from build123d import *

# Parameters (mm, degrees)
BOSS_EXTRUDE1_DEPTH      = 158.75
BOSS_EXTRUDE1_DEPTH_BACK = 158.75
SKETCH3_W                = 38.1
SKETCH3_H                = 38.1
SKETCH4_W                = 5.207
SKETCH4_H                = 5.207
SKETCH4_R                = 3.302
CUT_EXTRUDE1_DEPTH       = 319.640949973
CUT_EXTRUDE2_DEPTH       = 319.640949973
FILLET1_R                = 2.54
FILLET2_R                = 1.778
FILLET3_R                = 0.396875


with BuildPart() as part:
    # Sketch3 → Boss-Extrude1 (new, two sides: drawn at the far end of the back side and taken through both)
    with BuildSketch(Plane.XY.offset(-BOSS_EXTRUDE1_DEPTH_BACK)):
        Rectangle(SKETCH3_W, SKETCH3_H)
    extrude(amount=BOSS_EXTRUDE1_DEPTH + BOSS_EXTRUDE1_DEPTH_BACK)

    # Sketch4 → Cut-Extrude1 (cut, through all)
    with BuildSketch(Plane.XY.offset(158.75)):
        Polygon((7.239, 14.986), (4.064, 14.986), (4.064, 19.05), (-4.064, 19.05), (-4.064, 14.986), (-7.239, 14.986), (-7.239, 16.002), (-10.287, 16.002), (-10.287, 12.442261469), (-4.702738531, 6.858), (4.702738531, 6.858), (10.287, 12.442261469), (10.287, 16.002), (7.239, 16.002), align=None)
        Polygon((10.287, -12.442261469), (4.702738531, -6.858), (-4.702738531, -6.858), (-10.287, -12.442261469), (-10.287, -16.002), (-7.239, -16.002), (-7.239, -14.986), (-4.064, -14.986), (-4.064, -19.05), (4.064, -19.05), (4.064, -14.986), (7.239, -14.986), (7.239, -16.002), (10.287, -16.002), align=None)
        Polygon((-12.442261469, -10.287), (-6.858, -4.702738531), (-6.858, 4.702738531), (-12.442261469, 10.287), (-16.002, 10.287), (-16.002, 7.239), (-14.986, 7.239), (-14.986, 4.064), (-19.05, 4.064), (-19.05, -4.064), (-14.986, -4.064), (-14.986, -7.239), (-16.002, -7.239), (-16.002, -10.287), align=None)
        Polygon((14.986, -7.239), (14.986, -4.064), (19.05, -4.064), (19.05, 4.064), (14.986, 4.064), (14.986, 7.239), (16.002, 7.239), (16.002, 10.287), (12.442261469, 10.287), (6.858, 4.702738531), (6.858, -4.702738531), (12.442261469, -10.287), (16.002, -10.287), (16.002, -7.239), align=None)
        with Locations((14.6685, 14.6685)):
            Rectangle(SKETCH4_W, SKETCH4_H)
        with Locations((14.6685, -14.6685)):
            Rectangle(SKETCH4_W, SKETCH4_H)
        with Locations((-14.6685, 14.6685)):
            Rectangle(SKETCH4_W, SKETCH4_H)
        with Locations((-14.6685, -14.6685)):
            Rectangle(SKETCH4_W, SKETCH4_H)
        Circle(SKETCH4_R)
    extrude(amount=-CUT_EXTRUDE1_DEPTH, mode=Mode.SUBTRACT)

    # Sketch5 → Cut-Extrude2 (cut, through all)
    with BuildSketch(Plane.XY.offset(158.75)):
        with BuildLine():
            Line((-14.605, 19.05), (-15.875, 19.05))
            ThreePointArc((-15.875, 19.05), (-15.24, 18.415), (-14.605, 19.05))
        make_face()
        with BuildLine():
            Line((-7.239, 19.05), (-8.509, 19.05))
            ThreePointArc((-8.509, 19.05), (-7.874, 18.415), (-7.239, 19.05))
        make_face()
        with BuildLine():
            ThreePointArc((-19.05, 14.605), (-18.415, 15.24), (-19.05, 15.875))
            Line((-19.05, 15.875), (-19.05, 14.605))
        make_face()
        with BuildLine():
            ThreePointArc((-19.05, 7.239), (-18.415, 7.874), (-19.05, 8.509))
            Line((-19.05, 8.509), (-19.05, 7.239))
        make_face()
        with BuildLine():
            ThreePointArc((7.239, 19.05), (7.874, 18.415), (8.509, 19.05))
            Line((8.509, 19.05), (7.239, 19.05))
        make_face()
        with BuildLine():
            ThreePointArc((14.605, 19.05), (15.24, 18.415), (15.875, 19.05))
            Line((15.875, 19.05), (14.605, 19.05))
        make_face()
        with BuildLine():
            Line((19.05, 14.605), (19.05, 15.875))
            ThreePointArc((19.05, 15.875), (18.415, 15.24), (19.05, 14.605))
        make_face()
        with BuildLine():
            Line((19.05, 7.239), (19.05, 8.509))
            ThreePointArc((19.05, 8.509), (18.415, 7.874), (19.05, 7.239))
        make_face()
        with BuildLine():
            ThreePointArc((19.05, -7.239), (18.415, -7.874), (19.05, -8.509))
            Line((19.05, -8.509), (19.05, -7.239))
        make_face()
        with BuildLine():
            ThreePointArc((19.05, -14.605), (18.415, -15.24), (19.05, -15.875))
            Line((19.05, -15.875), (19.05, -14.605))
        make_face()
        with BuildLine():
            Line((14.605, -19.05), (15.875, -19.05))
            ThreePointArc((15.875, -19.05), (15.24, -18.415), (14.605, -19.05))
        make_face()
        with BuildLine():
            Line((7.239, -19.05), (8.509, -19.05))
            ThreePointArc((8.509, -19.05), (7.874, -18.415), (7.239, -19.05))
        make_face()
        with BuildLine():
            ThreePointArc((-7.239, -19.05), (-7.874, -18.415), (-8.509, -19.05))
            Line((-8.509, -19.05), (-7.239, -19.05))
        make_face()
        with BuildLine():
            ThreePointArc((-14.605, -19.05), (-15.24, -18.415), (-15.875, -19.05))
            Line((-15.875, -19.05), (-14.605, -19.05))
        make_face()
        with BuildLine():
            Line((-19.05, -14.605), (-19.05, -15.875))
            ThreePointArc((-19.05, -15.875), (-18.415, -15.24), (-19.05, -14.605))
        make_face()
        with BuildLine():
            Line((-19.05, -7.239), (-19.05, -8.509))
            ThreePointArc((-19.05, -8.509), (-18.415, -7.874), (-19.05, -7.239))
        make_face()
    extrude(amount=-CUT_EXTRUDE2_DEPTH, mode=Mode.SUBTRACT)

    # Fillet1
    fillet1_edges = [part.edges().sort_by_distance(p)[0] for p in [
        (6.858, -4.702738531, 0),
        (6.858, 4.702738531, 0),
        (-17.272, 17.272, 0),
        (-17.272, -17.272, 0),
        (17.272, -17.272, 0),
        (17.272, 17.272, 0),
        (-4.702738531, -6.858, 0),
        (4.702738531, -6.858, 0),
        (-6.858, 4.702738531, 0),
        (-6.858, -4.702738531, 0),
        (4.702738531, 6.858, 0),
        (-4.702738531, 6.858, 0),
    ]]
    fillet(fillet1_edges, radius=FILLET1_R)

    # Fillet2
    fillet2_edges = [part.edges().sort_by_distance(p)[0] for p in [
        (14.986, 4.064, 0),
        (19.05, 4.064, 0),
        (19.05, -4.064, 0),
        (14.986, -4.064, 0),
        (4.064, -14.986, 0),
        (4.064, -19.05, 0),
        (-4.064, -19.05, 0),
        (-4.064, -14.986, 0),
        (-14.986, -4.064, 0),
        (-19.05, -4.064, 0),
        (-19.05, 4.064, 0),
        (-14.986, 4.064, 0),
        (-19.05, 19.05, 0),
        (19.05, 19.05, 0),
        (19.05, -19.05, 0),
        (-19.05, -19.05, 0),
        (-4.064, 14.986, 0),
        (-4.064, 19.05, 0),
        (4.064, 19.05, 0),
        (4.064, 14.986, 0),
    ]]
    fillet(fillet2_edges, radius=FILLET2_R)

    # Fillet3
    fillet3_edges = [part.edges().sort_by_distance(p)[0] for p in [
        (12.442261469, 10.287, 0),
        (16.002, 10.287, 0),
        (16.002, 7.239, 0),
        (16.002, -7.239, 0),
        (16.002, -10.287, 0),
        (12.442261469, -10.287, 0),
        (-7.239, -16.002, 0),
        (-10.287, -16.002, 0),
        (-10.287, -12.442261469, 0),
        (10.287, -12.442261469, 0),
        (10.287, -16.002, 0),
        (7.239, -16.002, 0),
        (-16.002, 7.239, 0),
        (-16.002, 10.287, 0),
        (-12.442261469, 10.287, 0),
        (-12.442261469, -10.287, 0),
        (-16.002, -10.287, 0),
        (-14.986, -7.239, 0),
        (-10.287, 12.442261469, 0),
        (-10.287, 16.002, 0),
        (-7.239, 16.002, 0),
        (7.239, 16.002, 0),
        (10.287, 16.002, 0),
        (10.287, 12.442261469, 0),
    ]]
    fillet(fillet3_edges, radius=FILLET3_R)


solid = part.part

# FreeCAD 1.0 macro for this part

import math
import FreeCAD as App
import Part
import Sketcher

V = App.Vector
Q = App.Units.Quantity


def edges_at(feature, points):
    """Names of the edges that pass closest to the given points."""
    edges = feature.Shape.Edges
    near = lambda p: min(range(len(edges)), key=lambda i: edges[i].distToShape(Part.Vertex(*p))[0])
    return sorted({f"Edge{near(p) + 1}" for p in points})


def add_polygon(sketch, points):
    """Adds a closed chain of lines whose ends are joined by coincident constraints."""
    first, n = sketch.GeometryCount, len(points)
    for a, b in zip(points, points[1:] + points[:1]):
        sketch.addGeometry(Part.LineSegment(App.Vector(*a, 0), App.Vector(*b, 0)), False)
    for i in range(n):
        sketch.addConstraint(Sketcher.Constraint("Coincident", first + i, 2, first + (i + 1) % n, 1))

doc = App.newDocument("Part")
params = doc.addObject("Spreadsheet::Sheet", "Params")
for row, (alias, value) in enumerate([
    ("sketch1_width", "1.5 in"),
    ("pad1_length", "6.25 in"),
    ("pad1_length2", "6.25 in"),
    ("sketch2_diameter", "0.26 in"),
    ("sketch2_width", "0.32 in"),
    ("sketch2_width2", "0.12 in"),
    ("sketch2_width3", "0.04 in"),
    ("sketch2_width4", "0.16 in"),
    ("sketch3_radius", "0.025 in"),
    ("fillet_radius", "0.1 in"),
    ("fillet2_radius", "0.07 in"),
    ("fillet3_radius", "0.015625 in"),
], start=1):
    params.set(f"A{row}", alias)
    params.set(f"B{row}", "=" + value)
    params.setAlias(f"B{row}", alias)

body = doc.addObject("PartDesign::Body", "Body")

sketch1 = body.newObject("Sketcher::SketchObject", "Sketch")
sketch1.AttachmentSupport = (doc.getObject("XY_Plane"), [""])
sketch1.MapMode = "FlatFace"
add_polygon(sketch1, [(-19, 19), (-19, -19), (19, -19), (19, 19)])
sketch1.addConstraint([
    Sketcher.Constraint("Vertical", 0),
    Sketcher.Constraint("Horizontal", 1),
    Sketcher.Constraint("Vertical", 2),
    Sketcher.Constraint("Horizontal", 3),
    Sketcher.Constraint("Symmetric", 0, 2, 2, 2, -1, 1),
    Sketcher.Constraint("Equal", 3, 0),
    Sketcher.Constraint("DistanceX", 1, 1, 1, 2, Q("1.5 in")),
])
sketch1.setExpression("Constraints[10]", "Params.sketch1_width")
pad1 = body.newObject("PartDesign::Pad", "Pad")
pad1.Profile = sketch1
pad1.Type = "TwoLengths"
pad1.setExpression("Length", "Params.pad1_length")
pad1.setExpression("Length2", "Params.pad1_length2")

sketch2 = body.newObject("Sketcher::SketchObject", "Sketch001")
sketch2.AttachmentSupport = (doc.getObject("XY_Plane"), [""])
sketch2.MapMode = "FlatFace"
sketch2.AttachmentOffset = App.Placement(V(0, 0, 6.25 * 25.4), App.Rotation())
add_polygon(sketch2, [(7.2, 15), (4.1, 15), (4.1, 19.1), (-4.1, 19.1), (-4.1, 15), (-7.2, 15), (-7.2, 16), (-10.3, 16), (-10.3, 12.4), (-4.7, 6.9), (4.7, 6.9), (10.3, 12.4), (10.3, 16), (7.2, 16)])
add_polygon(sketch2, [(10.3, -12.4), (4.7, -6.9), (-4.7, -6.9), (-10.3, -12.4), (-10.3, -16), (-7.2, -16), (-7.2, -15), (-4.1, -15), (-4.1, -19.1), (4.1, -19.1), (4.1, -15), (7.2, -15), (7.2, -16), (10.3, -16)])
add_polygon(sketch2, [(-12.4, -10.3), (-6.9, -4.7), (-6.9, 4.7), (-12.4, 10.3), (-16, 10.3), (-16, 7.2), (-15, 7.2), (-15, 4.1), (-19.1, 4.1), (-19.1, -4.1), (-15, -4.1), (-15, -7.2), (-16, -7.2), (-16, -10.3)])
add_polygon(sketch2, [(15, -7.2), (15, -4.1), (19.1, -4.1), (19.1, 4.1), (15, 4.1), (15, 7.2), (16, 7.2), (16, 10.3), (12.4, 10.3), (6.9, 4.7), (6.9, -4.7), (12.4, -10.3), (16, -10.3), (16, -7.2)])
add_polygon(sketch2, [(12.1, 17.3), (12.1, 12.1), (17.3, 12.1), (17.3, 17.3)])
add_polygon(sketch2, [(12.1, -12.1), (12.1, -17.3), (17.3, -17.3), (17.3, -12.1)])
add_polygon(sketch2, [(-17.3, 17.3), (-17.3, 12.1), (-12.1, 12.1), (-12.1, 17.3)])
add_polygon(sketch2, [(-17.3, -12.1), (-17.3, -17.3), (-12.1, -17.3), (-12.1, -12.1)])
sketch2.addGeometry(Part.Circle(V(0, 0, 0), V(0, 0, 1), 3.3), False)
sketch2.addConstraint([
    Sketcher.Constraint("Horizontal", 0),
    Sketcher.Constraint("Vertical", 1),
    Sketcher.Constraint("Horizontal", 2),
    Sketcher.Constraint("Vertical", 3),
    Sketcher.Constraint("Horizontal", 4),
    Sketcher.Constraint("Vertical", 5),
    Sketcher.Constraint("Horizontal", 6),
    Sketcher.Constraint("Vertical", 7),
    Sketcher.Constraint("Horizontal", 9),
    Sketcher.Constraint("Vertical", 11),
    Sketcher.Constraint("Horizontal", 12),
    Sketcher.Constraint("Vertical", 13),
    Sketcher.Constraint("Horizontal", 15),
    Sketcher.Constraint("Vertical", 17),
    Sketcher.Constraint("Horizontal", 18),
    Sketcher.Constraint("Vertical", 19),
    Sketcher.Constraint("Horizontal", 20),
    Sketcher.Constraint("Vertical", 21),
    Sketcher.Constraint("Horizontal", 22),
    Sketcher.Constraint("Vertical", 23),
    Sketcher.Constraint("Horizontal", 24),
    Sketcher.Constraint("Vertical", 25),
    Sketcher.Constraint("Horizontal", 26),
    Sketcher.Constraint("Vertical", 27),
    Sketcher.Constraint("Vertical", 29),
    Sketcher.Constraint("Horizontal", 31),
    Sketcher.Constraint("Vertical", 32),
    Sketcher.Constraint("Horizontal", 33),
    Sketcher.Constraint("Vertical", 34),
    Sketcher.Constraint("Horizontal", 35),
    Sketcher.Constraint("Vertical", 36),
    Sketcher.Constraint("Horizontal", 37),
    Sketcher.Constraint("Vertical", 38),
    Sketcher.Constraint("Horizontal", 39),
    Sketcher.Constraint("Vertical", 40),
    Sketcher.Constraint("Horizontal", 41),
    Sketcher.Constraint("Vertical", 42),
    Sketcher.Constraint("Horizontal", 43),
    Sketcher.Constraint("Vertical", 44),
    Sketcher.Constraint("Horizontal", 45),
    Sketcher.Constraint("Vertical", 46),
    Sketcher.Constraint("Horizontal", 47),
    Sketcher.Constraint("Vertical", 48),
    Sketcher.Constraint("Horizontal", 49),
    Sketcher.Constraint("Vertical", 51),
    Sketcher.Constraint("Horizontal", 53),
    Sketcher.Constraint("Vertical", 54),
    Sketcher.Constraint("Horizontal", 55),
    Sketcher.Constraint("Vertical", 56),
    Sketcher.Constraint("Horizontal", 57),
    Sketcher.Constraint("Vertical", 58),
    Sketcher.Constraint("Horizontal", 59),
    Sketcher.Constraint("Vertical", 60),
    Sketcher.Constraint("Horizontal", 61),
    Sketcher.Constraint("Vertical", 62),
    Sketcher.Constraint("Horizontal", 63),
    Sketcher.Constraint("Vertical", 64),
    Sketcher.Constraint("Horizontal", 65),
    Sketcher.Constraint("Vertical", 66),
    Sketcher.Constraint("Horizontal", 67),
    Sketcher.Constraint("Vertical", 68),
    Sketcher.Constraint("Horizontal", 69),
    Sketcher.Constraint("Vertical", 70),
    Sketcher.Constraint("Horizontal", 71),
    Sketcher.Constraint("Coincident", 72, 3, -1, 1),
    Sketcher.Constraint("Symmetric", 8, 2, 14, 2, -1, 1),
    Sketcher.Constraint("Symmetric", 10, 2, 16, 2, -1, 1),
    Sketcher.Constraint("Symmetric", 12, 2, 18, 2, -1, 1),
    Sketcher.Constraint("Symmetric", 0, 2, 20, 2, -1, 1),
    Sketcher.Constraint("Symmetric", 2, 2, 22, 2, -1, 1),
    Sketcher.Constraint("Symmetric", 4, 2, 24, 2, -1, 1),
    Sketcher.Constraint("Symmetric", 6, 2, 26, 2, -1, 1),
    Sketcher.Constraint("Symmetric", 34, 2, 42, 2, -1, 1),
    Sketcher.Constraint("Symmetric", 36, 2, 44, 2, -1, 1),
    Sketcher.Constraint("Symmetric", 38, 2, 46, 2, -1, 1),
    Sketcher.Constraint("Symmetric", 40, 2, 48, 2, -1, 1),
    Sketcher.Constraint("Symmetric", 28, 2, 50, 2, -1, 1),
    Sketcher.Constraint("Symmetric", 30, 2, 52, 2, -1, 1),
    Sketcher.Constraint("Symmetric", 32, 2, 54, 2, -1, 1),
    Sketcher.Constraint("Symmetric", 62, 2, 64, 2, -1, 1),
    Sketcher.Constraint("Symmetric", 60, 2, 66, 2, -1, 1),
    Sketcher.Constraint("Symmetric", 58, 2, 68, 2, -1, 1),
    Sketcher.Constraint("Symmetric", 56, 2, 70, 2, -1, 1),
    Sketcher.Constraint("Symmetric", 0, 2, 3, 2, -2),
    Sketcher.Constraint("Symmetric", 7, 2, 10, 2, -2),
    Sketcher.Constraint("Symmetric", 5, 2, 12, 2, -2),
    Sketcher.Constraint("Symmetric", 37, 2, 42, 2, -2),
    Sketcher.Constraint("Symmetric", 32, 2, 47, 2, -2),
    Sketcher.Constraint("Symmetric", 30, 2, 49, 2, -2),
    Sketcher.Constraint("Symmetric", 57, 2, 64, 2, -2),
    Sketcher.Constraint("Symmetric", 59, 2, 66, 2, -2),
    Sketcher.Constraint("Perpendicular", 8, 10),
    Sketcher.Constraint("Perpendicular", 10, 14),
    Sketcher.Constraint("Perpendicular", 14, 16),
    Sketcher.Constraint("Parallel", 16, 28),
    Sketcher.Constraint("Perpendicular", 28, 30),
    Sketcher.Constraint("Perpendicular", 30, 50),
    Sketcher.Constraint("Perpendicular", 50, 52),
    Sketcher.Constraint("Horizontal", 29, 2, 50, 2),
    Sketcher.Constraint("Equal", 45, 1),
    Sketcher.Constraint("Equal", 55, 5),
    Sketcher.Constraint("Equal", 53, 7),
    Sketcher.Constraint("Equal", 15, 29),
    Sketcher.Constraint("Equal", 26, 32),
    Sketcher.Constraint("Equal", 24, 34),
    Sketcher.Constraint("Equal", 22, 36),
    Sketcher.Constraint("Equal", 71, 56),
    Sketcher.Constraint("Diameter", 72, Q("0.26 in")),
    Sketcher.Constraint("DistanceX", 2, 2, 2, 1, Q("0.32 in")),
    Sketcher.Constraint("DistanceX", 6, 2, 6, 1, Q("0.12 in")),
    Sketcher.Constraint("DistanceX", 33, 1, 33, 2, Q("0.04 in")),
    Sketcher.Constraint("DistanceX", 35, 2, 35, 1, Q("0.16 in")),
    Sketcher.Constraint("DistanceX", 0, 2, 0, 1, Q("0.125 in")),
    Sketcher.Constraint("DistanceX", 57, 1, 57, 2, Q("0.205 in")),
    Sketcher.Constraint("DistanceY", -1, 1, 0, 2, Q("0.59 in")),
    Sketcher.Constraint("DistanceY", -1, 1, 8, 2, Q("0.27 in")),
    Sketcher.Constraint("DistanceX", 28, 2, -1, 1, Q("0.27 in")),
    Sketcher.Constraint("DistanceX", -1, 1, 57, 2, Q("0.68 in")),
    Sketcher.Constraint("DistanceY", -1, 1, 58, 2, Q("0.68 in")),
    Sketcher.Constraint("DistanceX", 31, 2, 31, 1, Q("3.559739 mm")),
])
sketch2.setExpression("Constraints[179]", "Params.sketch2_diameter")
sketch2.setExpression("Constraints[180]", "Params.sketch2_width")
sketch2.setExpression("Constraints[181]", "Params.sketch2_width2")
sketch2.setExpression("Constraints[182]", "Params.sketch2_width3")
sketch2.setExpression("Constraints[183]", "Params.sketch2_width4")
pocket1 = body.newObject("PartDesign::Pocket", "Pocket")
pocket1.Profile = sketch2
pocket1.Type = "ThroughAll"

sketch3 = body.newObject("Sketcher::SketchObject", "Sketch002")
sketch3.AttachmentSupport = (doc.getObject("XY_Plane"), [""])
sketch3.MapMode = "FlatFace"
sketch3.AttachmentOffset = App.Placement(V(0, 0, 6.25 * 25.4), App.Rotation())
sketch3.addGeometry([
    Part.LineSegment(V(-14.6, 19.1, 0), V(-15.9, 19.1, 0)),
    Part.ArcOfCircle(Part.Circle(V(-15.2, 19.1, 0), V(0, 0, 1), 0.6), math.radians(180), math.radians(360)),
    Part.LineSegment(V(-7.2, 19.1, 0), V(-8.5, 19.1, 0)),
    Part.ArcOfCircle(Part.Circle(V(-7.9, 19.1, 0), V(0, 0, 1), 0.6), math.radians(180), math.radians(360)),
    Part.ArcOfCircle(Part.Circle(V(-19.1, 15.2, 0), V(0, 0, 1), 0.6), math.radians(-90), math.radians(90)),
    Part.LineSegment(V(-19.1, 15.9, 0), V(-19.1, 14.6, 0)),
    Part.ArcOfCircle(Part.Circle(V(-19.1, 7.9, 0), V(0, 0, 1), 0.6), math.radians(-90), math.radians(90)),
    Part.LineSegment(V(-19.1, 8.5, 0), V(-19.1, 7.2, 0)),
    Part.ArcOfCircle(Part.Circle(V(7.9, 19.1, 0), V(0, 0, 1), 0.6), math.radians(180), math.radians(360)),
    Part.LineSegment(V(8.5, 19.1, 0), V(7.2, 19.1, 0)),
    Part.ArcOfCircle(Part.Circle(V(15.2, 19.1, 0), V(0, 0, 1), 0.6), math.radians(180), math.radians(360)),
    Part.LineSegment(V(15.9, 19.1, 0), V(14.6, 19.1, 0)),
    Part.LineSegment(V(19.1, 14.6, 0), V(19.1, 15.9, 0)),
    Part.ArcOfCircle(Part.Circle(V(19.1, 15.2, 0), V(0, 0, 1), 0.6), math.radians(90), math.radians(270)),
    Part.LineSegment(V(19.1, 7.2, 0), V(19.1, 8.5, 0)),
    Part.ArcOfCircle(Part.Circle(V(19.1, 7.9, 0), V(0, 0, 1), 0.6), math.radians(90), math.radians(270)),
    Part.ArcOfCircle(Part.Circle(V(19.1, -7.9, 0), V(0, 0, 1), 0.6), math.radians(90), math.radians(270)),
    Part.LineSegment(V(19.1, -8.5, 0), V(19.1, -7.2, 0)),
    Part.ArcOfCircle(Part.Circle(V(19.1, -15.2, 0), V(0, 0, 1), 0.6), math.radians(90), math.radians(270)),
    Part.LineSegment(V(19.1, -15.9, 0), V(19.1, -14.6, 0)),
    Part.LineSegment(V(14.6, -19.1, 0), V(15.9, -19.1, 0)),
    Part.ArcOfCircle(Part.Circle(V(15.2, -19.1, 0), V(0, 0, 1), 0.6), math.radians(0), math.radians(180)),
    Part.LineSegment(V(7.2, -19.1, 0), V(8.5, -19.1, 0)),
    Part.ArcOfCircle(Part.Circle(V(7.9, -19.1, 0), V(0, 0, 1), 0.6), math.radians(0), math.radians(180)),
    Part.ArcOfCircle(Part.Circle(V(-7.9, -19.1, 0), V(0, 0, 1), 0.6), math.radians(0), math.radians(180)),
    Part.LineSegment(V(-8.5, -19.1, 0), V(-7.2, -19.1, 0)),
    Part.ArcOfCircle(Part.Circle(V(-15.2, -19.1, 0), V(0, 0, 1), 0.6), math.radians(0), math.radians(180)),
    Part.LineSegment(V(-15.9, -19.1, 0), V(-14.6, -19.1, 0)),
    Part.LineSegment(V(-19.1, -14.6, 0), V(-19.1, -15.9, 0)),
    Part.ArcOfCircle(Part.Circle(V(-19.1, -15.2, 0), V(0, 0, 1), 0.6), math.radians(-90), math.radians(90)),
    Part.LineSegment(V(-19.1, -7.2, 0), V(-19.1, -8.5, 0)),
    Part.ArcOfCircle(Part.Circle(V(-19.1, -7.9, 0), V(0, 0, 1), 0.6), math.radians(-90), math.radians(90)),
], False)
sketch3.addConstraint([
    Sketcher.Constraint("Coincident", 0, 1, 1, 2),
    Sketcher.Constraint("Coincident", 1, 1, 0, 2),
    Sketcher.Constraint("Coincident", 2, 1, 3, 2),
    Sketcher.Constraint("Coincident", 3, 1, 2, 2),
    Sketcher.Constraint("Coincident", 4, 1, 5, 2),
    Sketcher.Constraint("Coincident", 5, 1, 4, 2),
    Sketcher.Constraint("Coincident", 6, 1, 7, 2),
    Sketcher.Constraint("Coincident", 7, 1, 6, 2),
    Sketcher.Constraint("Coincident", 8, 1, 9, 2),
    Sketcher.Constraint("Coincident", 9, 1, 8, 2),
    Sketcher.Constraint("Coincident", 10, 1, 11, 2),
    Sketcher.Constraint("Coincident", 11, 1, 10, 2),
    Sketcher.Constraint("Coincident", 12, 1, 13, 2),
    Sketcher.Constraint("Coincident", 13, 1, 12, 2),
    Sketcher.Constraint("Coincident", 14, 1, 15, 2),
    Sketcher.Constraint("Coincident", 15, 1, 14, 2),
    Sketcher.Constraint("Coincident", 16, 1, 17, 2),
    Sketcher.Constraint("Coincident", 17, 1, 16, 2),
    Sketcher.Constraint("Coincident", 18, 1, 19, 2),
    Sketcher.Constraint("Coincident", 19, 1, 18, 2),
    Sketcher.Constraint("Coincident", 20, 1, 21, 2),
    Sketcher.Constraint("Coincident", 21, 1, 20, 2),
    Sketcher.Constraint("Coincident", 22, 1, 23, 2),
    Sketcher.Constraint("Coincident", 23, 1, 22, 2),
    Sketcher.Constraint("Coincident", 24, 1, 25, 2),
    Sketcher.Constraint("Coincident", 25, 1, 24, 2),
    Sketcher.Constraint("Coincident", 26, 1, 27, 2),
    Sketcher.Constraint("Coincident", 27, 1, 26, 2),
    Sketcher.Constraint("Coincident", 28, 1, 29, 2),
    Sketcher.Constraint("Coincident", 29, 1, 28, 2),
    Sketcher.Constraint("Coincident", 30, 1, 31, 2),
    Sketcher.Constraint("Coincident", 31, 1, 30, 2),
    Sketcher.Constraint("Horizontal", 0),
    Sketcher.Constraint("Horizontal", 2),
    Sketcher.Constraint("Vertical", 5),
    Sketcher.Constraint("Vertical", 7),
    Sketcher.Constraint("Horizontal", 9),
    Sketcher.Constraint("Horizontal", 11),
    Sketcher.Constraint("Vertical", 12),
    Sketcher.Constraint("Vertical", 14),
    Sketcher.Constraint("Vertical", 17),
    Sketcher.Constraint("Vertical", 19),
    Sketcher.Constraint("Horizontal", 20),
    Sketcher.Constraint("Horizontal", 22),
    Sketcher.Constraint("Horizontal", 25),
    Sketcher.Constraint("Horizontal", 27),
    Sketcher.Constraint("Vertical", 28),
    Sketcher.Constraint("Vertical", 30),
    Sketcher.Constraint("Equal", 1, 3),
    Sketcher.Constraint("Equal", 3, 4),
    Sketcher.Constraint("Equal", 4, 6),
    Sketcher.Constraint("Equal", 6, 8),
    Sketcher.Constraint("Equal", 8, 10),
    Sketcher.Constraint("Equal", 10, 13),
    Sketcher.Constraint("Equal", 13, 15),
    Sketcher.Constraint("Equal", 15, 16),
    Sketcher.Constraint("Equal", 16, 18),
    Sketcher.Constraint("Equal", 18, 21),
    Sketcher.Constraint("Equal", 21, 23),
    Sketcher.Constraint("Equal", 23, 24),
    Sketcher.Constraint("Equal", 24, 26),
    Sketcher.Constraint("Equal", 26, 29),
    Sketcher.Constraint("Equal", 29, 31),
    Sketcher.Constraint("Symmetric", 6, 3, 16, 3, -1, 1),
    Sketcher.Constraint("Symmetric", 4, 3, 18, 3, -1, 1),
    Sketcher.Constraint("Symmetric", 1, 3, 21, 3, -1, 1),
    Sketcher.Constraint("Symmetric", 3, 3, 23, 3, -1, 1),
    Sketcher.Constraint("Symmetric", 8, 3, 24, 3, -1, 1),
    Sketcher.Constraint("Symmetric", 10, 3, 26, 3, -1, 1),
    Sketcher.Constraint("Symmetric", 13, 3, 29, 3, -1, 1),
    Sketcher.Constraint("Symmetric", 15, 3, 31, 3, -1, 1),
    Sketcher.Constraint("Symmetric", 3, 3, 8, 3, -2),
    Sketcher.Constraint("Symmetric", 1, 3, 10, 3, -2),
    Sketcher.Constraint("Symmetric", 4, 3, 13, 3, -2),
    Sketcher.Constraint("Symmetric", 6, 3, 15, 3, -2),
    Sketcher.Constraint("Horizontal", 1, 3, 3, 3),
    Sketcher.Constraint("Horizontal", 10, 3, 0, 1),
    Sketcher.Constraint("Horizontal", 1, 1, 2, 1),
    Sketcher.Constraint("Horizontal", 3, 1, 8, 1),
    Sketcher.Constraint("Horizontal", 9, 1, 10, 1),
    Sketcher.Constraint("Horizontal", 26, 3, 20, 1),
    Sketcher.Constraint("Horizontal", 21, 1, 22, 1),
    Sketcher.Constraint("Horizontal", 23, 1, 24, 1),
    Sketcher.Constraint("Horizontal", 25, 1, 26, 1),
    Sketcher.Constraint("Vertical", 4, 3, 6, 3),
    Sketcher.Constraint("Vertical", 31, 3, 4, 1),
    Sketcher.Constraint("Vertical", 5, 1, 6, 1),
    Sketcher.Constraint("Vertical", 18, 3, 12, 1),
    Sketcher.Constraint("Vertical", 13, 1, 14, 1),
    Sketcher.Constraint("Vertical", 15, 1, 16, 1),
    Sketcher.Constraint("Vertical", 17, 1, 18, 1),
    Sketcher.Constraint("Vertical", 7, 1, 28, 1),
    Sketcher.Constraint("Vertical", 29, 1, 30, 1),
    Sketcher.Constraint("Radius", 1, Q("0.025 in")),
    Sketcher.Constraint("DistanceX", 1, 3, -1, 1, Q("0.6 in")),
    Sketcher.Constraint("DistanceY", -1, 1, 4, 3, Q("0.6 in")),
    Sketcher.Constraint("DistanceX", 4, 3, 13, 3, Q("1.5 in")),
    Sketcher.Constraint("DistanceY", 21, 3, 10, 3, Q("1.5 in")),
    Sketcher.Constraint("DistanceX", 3, 3, -1, 1, Q("0.31 in")),
    Sketcher.Constraint("DistanceY", -1, 1, 6, 3, Q("0.31 in")),
])
sketch3.setExpression("Constraints[93]", "Params.sketch3_radius")
pocket2 = body.newObject("PartDesign::Pocket", "Pocket001")
pocket2.Profile = sketch3
pocket2.Type = "ThroughAll"
doc.recompute()

fillet = body.newObject("PartDesign::Fillet", "Fillet")
fillet.Base = (pocket2, edges_at(pocket2, [
    (6.858, -4.703, 0),
    (6.858, 4.703, 0),
    (-17.272, 17.272, 0),
    (-17.272, -17.272, 0),
    (17.272, -17.272, 0),
    (17.272, 17.272, 0),
    (-4.703, -6.858, 0),
    (4.703, -6.858, 0),
    (-6.858, 4.703, 0),
    (-6.858, -4.703, 0),
    (4.703, 6.858, 0),
    (-4.703, 6.858, 0),
]))
fillet.setExpression("Radius", "Params.fillet_radius")
doc.recompute()

fillet2 = body.newObject("PartDesign::Fillet", "Fillet001")
fillet2.Base = (fillet, edges_at(fillet, [
    (14.986, 4.064, 0),
    (19.05, 4.064, 0),
    (19.05, -4.064, 0),
    (14.986, -4.064, 0),
    (4.064, -14.986, 0),
    (4.064, -19.05, 0),
    (-4.064, -19.05, 0),
    (-4.064, -14.986, 0),
    (-14.986, -4.064, 0),
    (-19.05, -4.064, 0),
    (-19.05, 4.064, 0),
    (-14.986, 4.064, 0),
    (-19.05, 19.05, 0),
    (19.05, 19.05, 0),
    (19.05, -19.05, 0),
    (-19.05, -19.05, 0),
    (-4.064, 14.986, 0),
    (-4.064, 19.05, 0),
    (4.064, 19.05, 0),
    (4.064, 14.986, 0),
]))
fillet2.setExpression("Radius", "Params.fillet2_radius")
doc.recompute()

fillet3 = body.newObject("PartDesign::Fillet", "Fillet002")
fillet3.Base = (fillet2, edges_at(fillet2, [
    (12.442, 10.287, 0),
    (16.002, 10.287, 0),
    (16.002, 7.239, 0),
    (16.002, -7.239, 0),
    (16.002, -10.287, 0),
    (12.442, -10.287, 0),
    (-7.239, -16.002, 0),
    (-10.287, -16.002, 0),
    (-10.287, -12.442, 0),
    (10.287, -12.442, 0),
    (10.287, -16.002, 0),
    (7.239, -16.002, 0),
    (-16.002, 7.239, 0),
    (-16.002, 10.287, 0),
    (-12.442, 10.287, 0),
    (-12.442, -10.287, 0),
    (-16.002, -10.287, 0),
    (-14.986, -7.239, 0),
    (-10.287, 12.442, 0),
    (-10.287, 16.002, 0),
    (-7.239, 16.002, 0),
    (7.239, 16.002, 0),
    (10.287, 16.002, 0),
    (10.287, 12.442, 0),
]))
fillet3.setExpression("Radius", "Params.fillet3_radius")

doc.recompute()
